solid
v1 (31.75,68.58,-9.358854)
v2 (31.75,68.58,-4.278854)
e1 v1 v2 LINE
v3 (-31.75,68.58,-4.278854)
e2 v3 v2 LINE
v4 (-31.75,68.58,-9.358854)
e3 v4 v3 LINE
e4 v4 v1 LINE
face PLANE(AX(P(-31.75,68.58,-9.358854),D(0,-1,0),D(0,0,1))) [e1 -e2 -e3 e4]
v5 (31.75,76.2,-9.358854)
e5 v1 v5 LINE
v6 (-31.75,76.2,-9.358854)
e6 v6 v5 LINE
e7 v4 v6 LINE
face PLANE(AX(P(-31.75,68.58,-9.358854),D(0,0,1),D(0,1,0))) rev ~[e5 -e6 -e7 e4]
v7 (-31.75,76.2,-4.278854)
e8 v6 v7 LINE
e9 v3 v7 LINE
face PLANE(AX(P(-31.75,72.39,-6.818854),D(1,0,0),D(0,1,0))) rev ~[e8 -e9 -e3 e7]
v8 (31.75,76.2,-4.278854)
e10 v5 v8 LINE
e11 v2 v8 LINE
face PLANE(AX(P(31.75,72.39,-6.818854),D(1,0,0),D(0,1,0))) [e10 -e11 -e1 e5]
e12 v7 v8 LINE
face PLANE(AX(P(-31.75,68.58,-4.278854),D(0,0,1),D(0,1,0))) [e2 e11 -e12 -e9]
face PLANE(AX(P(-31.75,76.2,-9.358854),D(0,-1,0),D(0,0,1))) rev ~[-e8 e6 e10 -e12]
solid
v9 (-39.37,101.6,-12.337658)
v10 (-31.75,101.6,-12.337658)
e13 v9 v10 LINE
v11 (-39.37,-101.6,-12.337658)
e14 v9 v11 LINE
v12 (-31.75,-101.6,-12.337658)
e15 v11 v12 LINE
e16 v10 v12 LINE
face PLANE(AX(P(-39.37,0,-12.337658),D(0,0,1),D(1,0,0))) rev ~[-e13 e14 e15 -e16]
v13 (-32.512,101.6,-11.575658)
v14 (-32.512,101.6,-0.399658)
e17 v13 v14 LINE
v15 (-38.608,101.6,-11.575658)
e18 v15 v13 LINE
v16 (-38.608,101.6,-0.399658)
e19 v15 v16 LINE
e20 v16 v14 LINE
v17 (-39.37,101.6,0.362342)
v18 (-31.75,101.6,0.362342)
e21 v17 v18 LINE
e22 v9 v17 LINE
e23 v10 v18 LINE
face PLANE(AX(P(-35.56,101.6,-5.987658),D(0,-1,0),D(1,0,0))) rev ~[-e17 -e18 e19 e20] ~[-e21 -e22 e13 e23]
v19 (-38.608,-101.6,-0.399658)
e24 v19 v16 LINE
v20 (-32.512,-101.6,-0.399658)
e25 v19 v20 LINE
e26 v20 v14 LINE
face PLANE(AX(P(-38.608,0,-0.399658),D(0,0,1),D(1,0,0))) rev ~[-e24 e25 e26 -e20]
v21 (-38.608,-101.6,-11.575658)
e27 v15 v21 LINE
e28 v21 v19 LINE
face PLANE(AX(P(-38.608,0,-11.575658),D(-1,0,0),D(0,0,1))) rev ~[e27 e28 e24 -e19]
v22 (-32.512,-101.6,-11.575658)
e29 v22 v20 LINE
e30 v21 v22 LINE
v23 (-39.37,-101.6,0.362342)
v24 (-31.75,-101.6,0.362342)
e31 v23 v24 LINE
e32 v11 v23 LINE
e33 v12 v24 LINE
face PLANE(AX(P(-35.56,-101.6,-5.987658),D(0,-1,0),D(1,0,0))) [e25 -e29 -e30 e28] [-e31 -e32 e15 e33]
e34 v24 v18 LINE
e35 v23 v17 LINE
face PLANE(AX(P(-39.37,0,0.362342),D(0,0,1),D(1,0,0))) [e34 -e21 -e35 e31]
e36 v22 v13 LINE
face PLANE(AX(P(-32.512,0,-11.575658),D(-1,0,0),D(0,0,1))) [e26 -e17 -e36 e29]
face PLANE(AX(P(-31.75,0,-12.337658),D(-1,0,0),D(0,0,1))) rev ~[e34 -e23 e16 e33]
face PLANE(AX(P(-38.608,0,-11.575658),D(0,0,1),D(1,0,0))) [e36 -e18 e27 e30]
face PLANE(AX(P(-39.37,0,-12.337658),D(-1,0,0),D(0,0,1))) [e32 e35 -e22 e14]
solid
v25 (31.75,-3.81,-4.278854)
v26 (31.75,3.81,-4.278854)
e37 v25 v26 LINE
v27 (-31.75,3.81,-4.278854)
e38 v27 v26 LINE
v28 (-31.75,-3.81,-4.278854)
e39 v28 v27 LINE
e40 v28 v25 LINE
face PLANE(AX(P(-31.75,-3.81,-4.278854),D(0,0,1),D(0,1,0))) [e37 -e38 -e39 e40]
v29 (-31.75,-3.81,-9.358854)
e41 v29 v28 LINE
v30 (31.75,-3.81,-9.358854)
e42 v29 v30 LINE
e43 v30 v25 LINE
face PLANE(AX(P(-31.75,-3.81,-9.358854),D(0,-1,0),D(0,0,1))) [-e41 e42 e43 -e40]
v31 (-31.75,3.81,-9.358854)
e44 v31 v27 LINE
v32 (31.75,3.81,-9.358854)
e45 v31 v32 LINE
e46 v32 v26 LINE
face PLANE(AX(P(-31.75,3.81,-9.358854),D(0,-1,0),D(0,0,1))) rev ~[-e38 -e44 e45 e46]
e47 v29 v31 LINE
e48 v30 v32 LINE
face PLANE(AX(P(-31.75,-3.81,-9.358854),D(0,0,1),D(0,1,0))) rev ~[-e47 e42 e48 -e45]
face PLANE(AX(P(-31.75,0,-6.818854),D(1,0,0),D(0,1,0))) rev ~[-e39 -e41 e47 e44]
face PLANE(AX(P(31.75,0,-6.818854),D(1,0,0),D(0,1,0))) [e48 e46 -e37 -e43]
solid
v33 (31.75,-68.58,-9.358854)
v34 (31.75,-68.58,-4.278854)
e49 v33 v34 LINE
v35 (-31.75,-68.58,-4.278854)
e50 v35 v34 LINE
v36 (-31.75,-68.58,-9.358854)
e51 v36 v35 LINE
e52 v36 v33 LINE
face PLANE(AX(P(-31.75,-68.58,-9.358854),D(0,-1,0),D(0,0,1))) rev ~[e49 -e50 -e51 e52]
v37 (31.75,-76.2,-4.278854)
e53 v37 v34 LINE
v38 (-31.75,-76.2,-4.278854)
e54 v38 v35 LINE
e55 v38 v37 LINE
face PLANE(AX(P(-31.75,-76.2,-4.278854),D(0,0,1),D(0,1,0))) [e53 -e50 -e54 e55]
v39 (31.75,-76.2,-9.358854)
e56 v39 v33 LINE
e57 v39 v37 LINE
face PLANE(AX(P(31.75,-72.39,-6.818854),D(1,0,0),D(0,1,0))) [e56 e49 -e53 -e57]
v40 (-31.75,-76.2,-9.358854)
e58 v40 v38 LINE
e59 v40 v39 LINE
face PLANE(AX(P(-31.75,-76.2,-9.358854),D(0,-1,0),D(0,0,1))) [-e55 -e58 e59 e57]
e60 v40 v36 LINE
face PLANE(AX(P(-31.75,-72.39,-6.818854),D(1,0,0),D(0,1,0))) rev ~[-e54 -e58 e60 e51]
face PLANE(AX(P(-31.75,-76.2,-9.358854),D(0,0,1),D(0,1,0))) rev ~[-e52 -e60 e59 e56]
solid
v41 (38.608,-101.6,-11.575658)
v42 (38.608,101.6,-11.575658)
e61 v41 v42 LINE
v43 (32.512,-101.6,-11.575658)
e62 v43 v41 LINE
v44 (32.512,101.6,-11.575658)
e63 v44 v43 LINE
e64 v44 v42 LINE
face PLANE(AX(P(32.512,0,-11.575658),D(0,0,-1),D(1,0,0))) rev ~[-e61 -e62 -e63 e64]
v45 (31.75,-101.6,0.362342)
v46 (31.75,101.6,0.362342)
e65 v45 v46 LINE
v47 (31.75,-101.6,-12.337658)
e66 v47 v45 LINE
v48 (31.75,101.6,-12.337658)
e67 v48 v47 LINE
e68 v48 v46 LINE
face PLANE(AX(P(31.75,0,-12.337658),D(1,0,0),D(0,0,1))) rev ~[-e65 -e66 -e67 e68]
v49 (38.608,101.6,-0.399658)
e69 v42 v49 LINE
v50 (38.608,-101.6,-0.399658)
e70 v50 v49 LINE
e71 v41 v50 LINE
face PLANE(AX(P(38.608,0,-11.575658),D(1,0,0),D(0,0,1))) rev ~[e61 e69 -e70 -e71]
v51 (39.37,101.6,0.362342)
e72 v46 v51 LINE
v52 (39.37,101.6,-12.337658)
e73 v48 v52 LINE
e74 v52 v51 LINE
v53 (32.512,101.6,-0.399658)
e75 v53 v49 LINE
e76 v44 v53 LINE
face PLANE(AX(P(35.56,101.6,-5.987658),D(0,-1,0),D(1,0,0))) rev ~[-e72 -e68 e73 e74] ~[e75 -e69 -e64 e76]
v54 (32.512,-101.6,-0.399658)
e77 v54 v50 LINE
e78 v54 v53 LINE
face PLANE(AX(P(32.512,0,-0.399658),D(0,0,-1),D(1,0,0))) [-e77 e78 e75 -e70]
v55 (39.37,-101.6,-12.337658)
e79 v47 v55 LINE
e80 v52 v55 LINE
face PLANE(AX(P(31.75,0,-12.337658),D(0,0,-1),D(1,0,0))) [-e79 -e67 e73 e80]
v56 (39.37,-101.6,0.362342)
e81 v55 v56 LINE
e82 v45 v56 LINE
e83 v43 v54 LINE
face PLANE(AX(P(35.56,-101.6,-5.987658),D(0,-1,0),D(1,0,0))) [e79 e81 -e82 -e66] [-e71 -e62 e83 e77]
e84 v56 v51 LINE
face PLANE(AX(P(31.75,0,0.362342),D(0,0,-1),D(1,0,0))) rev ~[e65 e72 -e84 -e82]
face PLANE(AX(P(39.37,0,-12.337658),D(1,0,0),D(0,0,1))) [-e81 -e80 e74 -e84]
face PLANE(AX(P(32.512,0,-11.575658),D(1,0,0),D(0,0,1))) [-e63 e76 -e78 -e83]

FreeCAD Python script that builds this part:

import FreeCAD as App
import Part
import Sketcher
from FreeCAD import Vector
Q = App.Units.Quantity

doc = App.newDocument("Part")
body = doc.addObject("PartDesign::Body", "Body")
body.AllowCompound = True

sketch1 = body.newObject("Sketcher::SketchObject", "Sketch")
sketch1.AttachmentSupport = (doc.getObject("XZ_Plane"), [""])
sketch1.MapMode = "FlatFace"
sketch1.addGeometry(Part.LineSegment(Vector(-39.37, 0.362342, 0), Vector(-39.37, -12.337658, 0)), False)
sketch1.addGeometry(Part.LineSegment(Vector(-39.37, -12.337658, 0), Vector(-31.75, -12.337658, 0)), False)
sketch1.addGeometry(Part.LineSegment(Vector(-31.75, -12.337658, 0), Vector(-31.75, 0.362342, 0)), False)
sketch1.addGeometry(Part.LineSegment(Vector(-31.75, 0.362342, 0), Vector(-39.37, 0.362342, 0)), False)
sketch1.addGeometry(Part.LineSegment(Vector(-32.512, -11.575658, 0), Vector(-38.608, -11.575658, 0)), False)
sketch1.addGeometry(Part.LineSegment(Vector(-38.608, -11.575658, 0), Vector(-38.608, -0.399658, 0)), False)
sketch1.addGeometry(Part.LineSegment(Vector(-38.608, -0.399658, 0), Vector(-32.512, -0.399658, 0)), False)
sketch1.addGeometry(Part.LineSegment(Vector(-32.512, -0.399658, 0), Vector(-32.512, -11.575658, 0)), False)
sketch1.addGeometry(Part.LineSegment(Vector(31.75, 0.362342, 0), Vector(31.75, -12.337658, 0)), False)
sketch1.addGeometry(Part.LineSegment(Vector(31.75, -12.337658, 0), Vector(39.37, -12.337658, 0)), False)
sketch1.addGeometry(Part.LineSegment(Vector(39.37, -12.337658, 0), Vector(39.37, 0.362342, 0)), False)
sketch1.addGeometry(Part.LineSegment(Vector(39.37, 0.362342, 0), Vector(31.75, 0.362342, 0)), False)
sketch1.addGeometry(Part.LineSegment(Vector(38.608, -11.575658, 0), Vector(32.512, -11.575658, 0)), False)
sketch1.addGeometry(Part.LineSegment(Vector(32.512, -11.575658, 0), Vector(32.512, -0.399658, 0)), False)
sketch1.addGeometry(Part.LineSegment(Vector(32.512, -0.399658, 0), Vector(38.608, -0.399658, 0)), False)
sketch1.addGeometry(Part.LineSegment(Vector(38.608, -0.399658, 0), Vector(38.608, -11.575658, 0)), False)
sketch1.addConstraint(Sketcher.Constraint("Coincident", 0, 2, 1, 1))
sketch1.addConstraint(Sketcher.Constraint("Coincident", 1, 2, 2, 1))
sketch1.addConstraint(Sketcher.Constraint("Coincident", 2, 2, 3, 1))
sketch1.addConstraint(Sketcher.Constraint("Coincident", 3, 2, 0, 1))
sketch1.addConstraint(Sketcher.Constraint("Coincident", 4, 2, 5, 1))
sketch1.addConstraint(Sketcher.Constraint("Coincident", 5, 2, 6, 1))
sketch1.addConstraint(Sketcher.Constraint("Coincident", 6, 2, 7, 1))
sketch1.addConstraint(Sketcher.Constraint("Coincident", 7, 2, 4, 1))
sketch1.addConstraint(Sketcher.Constraint("Coincident", 8, 2, 9, 1))
sketch1.addConstraint(Sketcher.Constraint("Coincident", 9, 2, 10, 1))
sketch1.addConstraint(Sketcher.Constraint("Coincident", 10, 2, 11, 1))
sketch1.addConstraint(Sketcher.Constraint("Coincident", 11, 2, 8, 1))
sketch1.addConstraint(Sketcher.Constraint("Coincident", 12, 2, 13, 1))
sketch1.addConstraint(Sketcher.Constraint("Coincident", 13, 2, 14, 1))
sketch1.addConstraint(Sketcher.Constraint("Coincident", 14, 2, 15, 1))
sketch1.addConstraint(Sketcher.Constraint("Coincident", 15, 2, 12, 1))
sketch1.addConstraint(Sketcher.Constraint("Vertical", 0))
sketch1.addConstraint(Sketcher.Constraint("Horizontal", 1))
sketch1.addConstraint(Sketcher.Constraint("Vertical", 2))
sketch1.addConstraint(Sketcher.Constraint("Horizontal", 3))
sketch1.addConstraint(Sketcher.Constraint("Horizontal", 4))
sketch1.addConstraint(Sketcher.Constraint("Vertical", 5))
sketch1.addConstraint(Sketcher.Constraint("Horizontal", 6))
sketch1.addConstraint(Sketcher.Constraint("Vertical", 7))
sketch1.addConstraint(Sketcher.Constraint("Vertical", 8))
sketch1.addConstraint(Sketcher.Constraint("Horizontal", 9))
sketch1.addConstraint(Sketcher.Constraint("Vertical", 10))
sketch1.addConstraint(Sketcher.Constraint("Horizontal", 11))
sketch1.addConstraint(Sketcher.Constraint("Horizontal", 12))
sketch1.addConstraint(Sketcher.Constraint("Vertical", 13))
sketch1.addConstraint(Sketcher.Constraint("Horizontal", 14))
sketch1.addConstraint(Sketcher.Constraint("Vertical", 15))
sketch1.addConstraint(Sketcher.Constraint("Symmetric", 1, 2, 8, 2, -2))
sketch1.addConstraint(Sketcher.Constraint("Symmetric", 3, 2, 10, 2, -2))
sketch1.addConstraint(Sketcher.Constraint("Symmetric", 7, 2, 12, 2, -2))
sketch1.addConstraint(Sketcher.Constraint("Symmetric", 5, 2, 14, 2, -2))
sketch1.addConstraint(Sketcher.Constraint("DistanceX", 1, 1, 1, 2, Q("0.3 in")))
sketch1.addConstraint(Sketcher.Constraint("DistanceY", 0, 2, 0, 1, Q("0.5 in")))
sketch1.addConstraint(Sketcher.Constraint("DistanceX", 4, 2, 4, 1, Q("0.24 in")))
sketch1.addConstraint(Sketcher.Constraint("DistanceY", 5, 1, 5, 2, Q("0.44 in")))
sketch1.addConstraint(Sketcher.Constraint("DistanceX", 1, 2, 8, 2, Q("2.5 in")))
sketch1.addConstraint(Sketcher.Constraint("DistanceX", 4, 2, -1, 1, Q("1.52 in")))
sketch1.addConstraint(Sketcher.Constraint("DistanceY", 0, 2, 4, 2, Q("0.03 in")))
sketch1.addConstraint(Sketcher.Constraint("DistanceY", 4, 2, -1, 1, 11.575658))
pad1 = body.newObject("PartDesign::Pad", "Pad")
pad1.Profile = sketch1
pad1.Length = Q("8 in")
pad1.Midplane = True
body2 = doc.addObject("PartDesign::Body", "Body001")
body2.AllowCompound = True

sketch2 = body2.newObject("Sketcher::SketchObject", "Sketch001")
sketch2.AttachmentSupport = (doc.getObject("YZ_Plane001"), [""])
sketch2.MapMode = "FlatFace"
sketch2.AttachmentOffset = App.Placement(Vector(0, 0, -1.25 * 25.4), App.Rotation())
sketch2.addGeometry(Part.LineSegment(Vector(-76.2, -4.278854, 0), Vector(-76.2, -9.358854, 0)), False)
sketch2.addGeometry(Part.LineSegment(Vector(-76.2, -9.358854, 0), Vector(-68.58, -9.358854, 0)), False)
sketch2.addGeometry(Part.LineSegment(Vector(-68.58, -9.358854, 0), Vector(-68.58, -4.278854, 0)), False)
sketch2.addGeometry(Part.LineSegment(Vector(-68.58, -4.278854, 0), Vector(-76.2, -4.278854, 0)), False)
sketch2.addGeometry(Part.LineSegment(Vector(-3.81, -4.278854, 0), Vector(-3.81, -9.358854, 0)), False)
sketch2.addGeometry(Part.LineSegment(Vector(-3.81, -9.358854, 0), Vector(3.81, -9.358854, 0)), False)
sketch2.addGeometry(Part.LineSegment(Vector(3.81, -9.358854, 0), Vector(3.81, -4.278854, 0)), False)
sketch2.addGeometry(Part.LineSegment(Vector(3.81, -4.278854, 0), Vector(-3.81, -4.278854, 0)), False)
sketch2.addGeometry(Part.LineSegment(Vector(68.58, -4.278854, 0), Vector(68.58, -9.358854, 0)), False)
sketch2.addGeometry(Part.LineSegment(Vector(68.58, -9.358854, 0), Vector(76.2, -9.358854, 0)), False)
sketch2.addGeometry(Part.LineSegment(Vector(76.2, -9.358854, 0), Vector(76.2, -4.278854, 0)), False)
sketch2.addGeometry(Part.LineSegment(Vector(76.2, -4.278854, 0), Vector(68.58, -4.278854, 0)), False)
sketch2.addConstraint(Sketcher.Constraint("Coincident", 0, 2, 1, 1))
sketch2.addConstraint(Sketcher.Constraint("Coincident", 1, 2, 2, 1))
sketch2.addConstraint(Sketcher.Constraint("Coincident", 2, 2, 3, 1))
sketch2.addConstraint(Sketcher.Constraint("Coincident", 3, 2, 0, 1))
sketch2.addConstraint(Sketcher.Constraint("Coincident", 4, 2, 5, 1))
sketch2.addConstraint(Sketcher.Constraint("Coincident", 5, 2, 6, 1))
sketch2.addConstraint(Sketcher.Constraint("Coincident", 6, 2, 7, 1))
sketch2.addConstraint(Sketcher.Constraint("Coincident", 7, 2, 4, 1))
sketch2.addConstraint(Sketcher.Constraint("Coincident", 8, 2, 9, 1))
sketch2.addConstraint(Sketcher.Constraint("Coincident", 9, 2, 10, 1))
sketch2.addConstraint(Sketcher.Constraint("Coincident", 10, 2, 11, 1))
sketch2.addConstraint(Sketcher.Constraint("Coincident", 11, 2, 8, 1))
sketch2.addConstraint(Sketcher.Constraint("Vertical", 0))
sketch2.addConstraint(Sketcher.Constraint("Horizontal", 1))
sketch2.addConstraint(Sketcher.Constraint("Vertical", 2))
sketch2.addConstraint(Sketcher.Constraint("Horizontal", 3))
sketch2.addConstraint(Sketcher.Constraint("Vertical", 4))
sketch2.addConstraint(Sketcher.Constraint("Horizontal", 5))
sketch2.addConstraint(Sketcher.Constraint("Vertical", 6))
sketch2.addConstraint(Sketcher.Constraint("Horizontal", 7))
sketch2.addConstraint(Sketcher.Constraint("Vertical", 8))
sketch2.addConstraint(Sketcher.Constraint("Horizontal", 9))
sketch2.addConstraint(Sketcher.Constraint("Vertical", 10))
sketch2.addConstraint(Sketcher.Constraint("Horizontal", 11))
sketch2.addConstraint(Sketcher.Constraint("Symmetric", 1, 2, 8, 2, -2))
sketch2.addConstraint(Sketcher.Constraint("Symmetric", 3, 2, 10, 2, -2))
sketch2.addConstraint(Sketcher.Constraint("Horizontal", 1, 2, 4, 2))
sketch2.addConstraint(Sketcher.Constraint("Horizontal", 3, 2, 6, 2))
sketch2.addConstraint(Sketcher.Constraint("Equal", 3, 5))
sketch2.addConstraint(Sketcher.Constraint("DistanceX", 1, 1, 1, 2, Q("0.3 in")))
sketch2.addConstraint(Sketcher.Constraint("DistanceY", 0, 2, 0, 1, Q("0.2 in")))
sketch2.addConstraint(Sketcher.Constraint("DistanceX", 0, 2, -1, 1, Q("3 in")))
sketch2.addConstraint(Sketcher.Constraint("DistanceX", 4, 2, -1, 1, Q("0.15 in")))
sketch2.addConstraint(Sketcher.Constraint("DistanceY", 0, 2, -1, 1, 9.358854))
pad2 = body2.newObject("PartDesign::Pad", "Pad001")
pad2.Profile = sketch2
pad2.Length = Q("2.5 in")

doc.recompute()
